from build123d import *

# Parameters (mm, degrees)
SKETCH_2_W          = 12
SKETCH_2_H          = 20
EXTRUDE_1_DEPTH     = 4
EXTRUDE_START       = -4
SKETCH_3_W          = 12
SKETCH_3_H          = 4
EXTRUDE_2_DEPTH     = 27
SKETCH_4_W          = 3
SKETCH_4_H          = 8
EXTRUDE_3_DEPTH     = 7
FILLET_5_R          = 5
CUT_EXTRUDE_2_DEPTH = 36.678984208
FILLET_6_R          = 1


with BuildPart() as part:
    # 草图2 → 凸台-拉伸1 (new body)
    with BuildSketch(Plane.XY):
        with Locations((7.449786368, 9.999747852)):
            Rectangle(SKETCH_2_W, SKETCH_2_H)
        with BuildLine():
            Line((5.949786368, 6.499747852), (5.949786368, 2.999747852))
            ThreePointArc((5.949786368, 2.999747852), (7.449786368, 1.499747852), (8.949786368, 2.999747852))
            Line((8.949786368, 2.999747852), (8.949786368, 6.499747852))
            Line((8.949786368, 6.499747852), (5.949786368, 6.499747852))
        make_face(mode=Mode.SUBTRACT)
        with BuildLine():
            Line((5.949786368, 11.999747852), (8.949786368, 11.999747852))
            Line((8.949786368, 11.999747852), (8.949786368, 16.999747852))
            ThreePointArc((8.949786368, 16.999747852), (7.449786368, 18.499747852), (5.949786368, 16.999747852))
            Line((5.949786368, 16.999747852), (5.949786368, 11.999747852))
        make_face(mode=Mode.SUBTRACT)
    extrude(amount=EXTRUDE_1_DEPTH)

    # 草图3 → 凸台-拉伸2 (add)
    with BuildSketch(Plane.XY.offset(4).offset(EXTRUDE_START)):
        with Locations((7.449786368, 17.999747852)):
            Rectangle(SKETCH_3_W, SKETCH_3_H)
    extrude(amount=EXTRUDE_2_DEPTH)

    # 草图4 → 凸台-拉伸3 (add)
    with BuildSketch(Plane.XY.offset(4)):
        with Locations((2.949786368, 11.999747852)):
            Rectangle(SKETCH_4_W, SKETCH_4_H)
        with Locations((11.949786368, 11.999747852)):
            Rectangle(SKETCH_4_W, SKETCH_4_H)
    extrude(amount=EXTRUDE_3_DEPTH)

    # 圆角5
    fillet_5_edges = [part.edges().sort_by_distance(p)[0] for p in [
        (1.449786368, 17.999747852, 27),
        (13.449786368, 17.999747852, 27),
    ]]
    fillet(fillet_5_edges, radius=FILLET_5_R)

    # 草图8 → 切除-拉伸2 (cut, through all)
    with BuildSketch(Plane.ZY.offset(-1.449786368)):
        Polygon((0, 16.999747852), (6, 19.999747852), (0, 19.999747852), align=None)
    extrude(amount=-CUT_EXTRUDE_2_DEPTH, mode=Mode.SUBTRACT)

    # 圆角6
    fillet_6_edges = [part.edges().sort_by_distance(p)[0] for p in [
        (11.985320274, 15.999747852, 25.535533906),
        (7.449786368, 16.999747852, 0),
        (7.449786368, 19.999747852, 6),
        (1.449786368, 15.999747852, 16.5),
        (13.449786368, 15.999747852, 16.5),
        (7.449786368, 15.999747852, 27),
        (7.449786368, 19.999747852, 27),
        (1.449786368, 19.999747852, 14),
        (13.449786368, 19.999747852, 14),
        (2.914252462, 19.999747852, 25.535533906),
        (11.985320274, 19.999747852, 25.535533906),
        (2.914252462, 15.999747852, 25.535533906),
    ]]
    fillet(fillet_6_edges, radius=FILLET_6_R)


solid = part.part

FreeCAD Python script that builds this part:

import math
import FreeCAD as App
import Part
import Sketcher

V = App.Vector
Q = App.Units.Quantity


def edges_at(feature, points):
    """Names of the edges that pass closest to the given points."""
    edges = feature.Shape.Edges
    near = lambda p: min(range(len(edges)), key=lambda i: edges[i].distToShape(Part.Vertex(*p))[0])
    return sorted({f"Edge{near(p) + 1}" for p in points})


def add_polygon(sketch, points):
    """Adds a closed chain of lines whose ends are joined by coincident constraints."""
    first, n = sketch.GeometryCount, len(points)
    for a, b in zip(points, points[1:] + points[:1]):
        sketch.addGeometry(Part.LineSegment(App.Vector(*a, 0), App.Vector(*b, 0)), False)
    for i in range(n):
        sketch.addConstraint(Sketcher.Constraint("Coincident", first + i, 2, first + (i + 1) % n, 1))

doc = App.newDocument("Part")
body = doc.addObject("PartDesign::Body", "Body")

# Sketch on XY plane
sketch1 = body.newObject("Sketcher::SketchObject", "Sketch")
sketch1.AttachmentSupport = (doc.getObject("XY_Plane"), [""])
sketch1.MapMode = "FlatFace"
add_polygon(sketch1, [(1.4, 20), (1.4, 0), (13.4, 0), (13.4, 20)])  # lines 0-3
sketch1.addGeometry(Part.LineSegment(V(5.9, 3, 0), V(5.9, 6.5, 0)), False)  # 4
sketch1.addGeometry(Part.LineSegment(V(5.9, 6.5, 0), V(8.9, 6.5, 0)), False)  # 5
sketch1.addGeometry(Part.LineSegment(V(8.9, 6.5, 0), V(8.9, 3, 0)), False)  # 6
sketch1.addGeometry(Part.ArcOfCircle(Part.Circle(V(7.4, 3, 0), V(0, 0, 1), 1.5), math.radians(180), math.radians(360)), False)  # 7
sketch1.addGeometry(Part.LineSegment(V(8.9, 12, 0), V(5.9, 12, 0)), False)  # 8
sketch1.addGeometry(Part.LineSegment(V(5.9, 12, 0), V(5.9, 17, 0)), False)  # 9
sketch1.addGeometry(Part.ArcOfCircle(Part.Circle(V(7.4, 17, 0), V(0, 0, 1), 1.5), math.radians(0), math.radians(180)), False)  # 10
sketch1.addGeometry(Part.LineSegment(V(8.9, 17, 0), V(8.9, 12, 0)), False)  # 11
sketch1.addConstraint(Sketcher.Constraint("Coincident", 4, 2, 5, 1))
sketch1.addConstraint(Sketcher.Constraint("Coincident", 5, 2, 6, 1))
sketch1.addConstraint(Sketcher.Constraint("Tangent", 6, 2, 7, 2))
sketch1.addConstraint(Sketcher.Constraint("Tangent", 7, 1, 4, 1))
sketch1.addConstraint(Sketcher.Constraint("Coincident", 8, 2, 9, 1))
sketch1.addConstraint(Sketcher.Constraint("Tangent", 9, 2, 10, 2))
sketch1.addConstraint(Sketcher.Constraint("Tangent", 10, 1, 11, 1))
sketch1.addConstraint(Sketcher.Constraint("Coincident", 11, 2, 8, 1))
sketch1.addConstraint(Sketcher.Constraint("Vertical", 0))
sketch1.addConstraint(Sketcher.Constraint("Horizontal", 1))
sketch1.addConstraint(Sketcher.Constraint("Vertical", 2))
sketch1.addConstraint(Sketcher.Constraint("Horizontal", 3))
sketch1.addConstraint(Sketcher.Constraint("Vertical", 4))
sketch1.addConstraint(Sketcher.Constraint("Horizontal", 5))
sketch1.addConstraint(Sketcher.Constraint("Vertical", 6))
sketch1.addConstraint(Sketcher.Constraint("Horizontal", 8))
sketch1.addConstraint(Sketcher.Constraint("Vertical", 9))
sketch1.addConstraint(Sketcher.Constraint("Vertical", 11))
sketch1.addConstraint(Sketcher.Constraint("Equal", 7, 10))
sketch1.addConstraint(Sketcher.Constraint("Vertical", 7, 3, 10, 3))
sketch1.addConstraint(Sketcher.Constraint("Radius", 7, Q("1.5 mm")))
sketch1.addConstraint(Sketcher.Constraint("DistanceX", 1, 1, 1, 2, Q("12 mm")))
sketch1.addConstraint(Sketcher.Constraint("DistanceY", 0, 2, 0, 1, Q("20 mm")))
sketch1.addConstraint(Sketcher.Constraint("DistanceY", 9, 1, 9, 2, Q("5 mm")))
sketch1.addConstraint(Sketcher.Constraint("DistanceY", 4, 1, 4, 2, Q("3.5 mm")))
sketch1.addConstraint(Sketcher.Constraint("DistanceY", 7, 3, 10, 3, Q("14 mm")))
sketch1.addConstraint(Sketcher.Constraint("DistanceX", 0, 2, 7, 3, Q("6 mm")))
sketch1.addConstraint(Sketcher.Constraint("DistanceY", 0, 2, 7, 3, Q("3 mm")))
sketch1.addConstraint(Sketcher.Constraint("DistanceX", -1, 1, 7, 3, Q("7.449786 mm")))
sketch1.addConstraint(Sketcher.Constraint("DistanceY", -1, 1, 7, 3, Q("2.999748 mm")))
pad1 = body.newObject("PartDesign::Pad", "Pad")
pad1.Profile = sketch1
pad1.Length = 4

# Sketch on XY plane
sketch2 = body.newObject("Sketcher::SketchObject", "Sketch001")
sketch2.AttachmentSupport = (doc.getObject("XY_Plane"), [""])
sketch2.MapMode = "FlatFace"
add_polygon(sketch2, [(1.4, 20), (1.4, 16), (13.4, 16), (13.4, 20)])  # lines 0-3
sketch2.addConstraint(Sketcher.Constraint("Vertical", 0))
sketch2.addConstraint(Sketcher.Constraint("Horizontal", 1))
sketch2.addConstraint(Sketcher.Constraint("Vertical", 2))
sketch2.addConstraint(Sketcher.Constraint("Horizontal", 3))
sketch2.addConstraint(Sketcher.Constraint("DistanceX", 1, 1, 1, 2, Q("12 mm")))
sketch2.addConstraint(Sketcher.Constraint("DistanceY", 0, 2, 0, 1, Q("4 mm")))
sketch2.addConstraint(Sketcher.Constraint("DistanceX", -1, 1, 0, 2, Q("1.449786 mm")))
sketch2.addConstraint(Sketcher.Constraint("DistanceY", -1, 1, 0, 2, Q("15.999748 mm")))
pad2 = body.newObject("PartDesign::Pad", "Pad001")
pad2.Profile = sketch2
pad2.Length = 27

# Sketch on XY plane
sketch3 = body.newObject("Sketcher::SketchObject", "Sketch002")
sketch3.AttachmentSupport = (doc.getObject("XY_Plane"), [""])
sketch3.MapMode = "FlatFace"
sketch3.AttachmentOffset = App.Placement(V(0, 0, 4), App.Rotation())
add_polygon(sketch3, [(1.4, 16), (1.4, 8), (4.4, 8), (4.4, 16)])  # lines 0-3
add_polygon(sketch3, [(10.4, 16), (10.4, 8), (13.4, 8), (13.4, 16)])  # lines 4-7
sketch3.addConstraint(Sketcher.Constraint("Vertical", 0))
sketch3.addConstraint(Sketcher.Constraint("Horizontal", 1))
sketch3.addConstraint(Sketcher.Constraint("Vertical", 2))
sketch3.addConstraint(Sketcher.Constraint("Horizontal", 3))
sketch3.addConstraint(Sketcher.Constraint("Vertical", 4))
sketch3.addConstraint(Sketcher.Constraint("Horizontal", 5))
sketch3.addConstraint(Sketcher.Constraint("Vertical", 6))
sketch3.addConstraint(Sketcher.Constraint("Horizontal", 7))
sketch3.addConstraint(Sketcher.Constraint("Horizontal", 1, 2, 4, 2))
sketch3.addConstraint(Sketcher.Constraint("Horizontal", 3, 2, 6, 2))
sketch3.addConstraint(Sketcher.Constraint("Equal", 3, 5))
sketch3.addConstraint(Sketcher.Constraint("DistanceX", 1, 1, 1, 2, Q("3 mm")))
sketch3.addConstraint(Sketcher.Constraint("DistanceY", 0, 2, 0, 1, Q("8 mm")))
sketch3.addConstraint(Sketcher.Constraint("DistanceX", 1, 2, 4, 2, Q("6 mm")))
sketch3.addConstraint(Sketcher.Constraint("DistanceX", -1, 1, 0, 2, Q("1.449786 mm")))
sketch3.addConstraint(Sketcher.Constraint("DistanceY", -1, 1, 0, 2, Q("7.999748 mm")))
pad3 = body.newObject("PartDesign::Pad", "Pad002")
pad3.Profile = sketch3
pad3.Length = 7
doc.recompute()

fillet = body.newObject("PartDesign::Fillet", "Fillet")
fillet.Base = (pad3, edges_at(pad3, [(1.45, 18, 27), (13.45, 18, 27)]))
fillet.Radius = 5

# Sketch on YZ plane
sketch4 = body.newObject("Sketcher::SketchObject", "Sketch003")
sketch4.AttachmentSupport = (doc.getObject("YZ_Plane"), [""])
sketch4.MapMode = "FlatFace"
sketch4.AttachmentOffset = App.Placement(V(0, 0, 1.449786), App.Rotation())
add_polygon(sketch4, [(17, 0), (20, 6), (20, 0)])  # lines 0-2
sketch4.addConstraint(Sketcher.Constraint("Vertical", 1))
sketch4.addConstraint(Sketcher.Constraint("Horizontal", 2))
sketch4.addConstraint(Sketcher.Constraint("PointOnObject", 1, 2, -1))
sketch4.addConstraint(Sketcher.Constraint("DistanceX", 2, 2, 2, 1, Q("3 mm")))
sketch4.addConstraint(Sketcher.Constraint("DistanceY", 1, 2, 1, 1, Q("6 mm")))
sketch4.addConstraint(Sketcher.Constraint("DistanceX", -1, 1, 0, 2, Q("19.999748 mm")))
pocket1 = body.newObject("PartDesign::Pocket", "Pocket")
pocket1.Profile = sketch4
pocket1.Type = "ThroughAll"
pocket1.Reversed = True
doc.recompute()

fillet2 = body.newObject("PartDesign::Fillet", "Fillet001")
fillet2.Base = (pocket1, edges_at(pocket1, [
    (11.985, 16, 25.536),
    (7.45, 17, 0),
    (7.45, 20, 6),
    (1.45, 16, 16.5),
    (13.45, 16, 16.5),
    (7.45, 16, 27),
    (7.45, 20, 27),
    (1.45, 20, 14),
    (13.45, 20, 14),
    (2.914, 20, 25.536),
    (11.985, 20, 25.536),
    (2.914, 16, 25.536),
]))
fillet2.Radius = 1

doc.recompute()
